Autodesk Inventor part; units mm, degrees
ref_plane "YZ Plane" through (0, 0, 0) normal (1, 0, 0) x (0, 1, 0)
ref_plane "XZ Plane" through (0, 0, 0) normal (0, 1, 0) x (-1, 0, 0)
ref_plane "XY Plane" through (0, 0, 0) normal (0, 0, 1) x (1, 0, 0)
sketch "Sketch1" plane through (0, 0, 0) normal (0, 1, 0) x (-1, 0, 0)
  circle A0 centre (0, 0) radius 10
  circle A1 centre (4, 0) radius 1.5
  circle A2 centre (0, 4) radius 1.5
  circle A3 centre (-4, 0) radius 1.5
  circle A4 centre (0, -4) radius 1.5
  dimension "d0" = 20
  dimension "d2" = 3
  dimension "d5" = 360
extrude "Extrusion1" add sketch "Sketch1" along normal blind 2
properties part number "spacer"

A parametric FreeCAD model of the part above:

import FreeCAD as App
import Part
import Sketcher
Q = App.Units.Quantity

doc = App.newDocument("Part")
body = doc.addObject("PartDesign::Body", "Body")

# Sketch on XZ plane
sketch1 = body.newObject("Sketcher::SketchObject", "Sketch")
sketch1.AttachmentSupport = (doc.getObject("XZ_Plane"), [""])
sketch1.MapMode = "FlatFace"
sketch1.addGeometry(Part.Circle(App.Vector(0, 0, 0), App.Vector(0, 0, 1), 10), False)
sketch1.addGeometry(Part.Circle(App.Vector(0, -4, 0), App.Vector(0, 0, 1), 1.5), False)
sketch1.addGeometry(Part.Circle(App.Vector(4, 0, 0), App.Vector(0, 0, 1), 1.5), False)
sketch1.addGeometry(Part.Circle(App.Vector(-4, 0, 0), App.Vector(0, 0, 1), 1.5), False)
sketch1.addGeometry(Part.Circle(App.Vector(0, 4, 0), App.Vector(0, 0, 1), 1.5), False)
sketch1.addConstraint(Sketcher.Constraint("Coincident", 0, 3, -1, 1))
sketch1.addConstraint(Sketcher.Constraint("Equal", 1, 2))
sketch1.addConstraint(Sketcher.Constraint("Equal", 2, 3))
sketch1.addConstraint(Sketcher.Constraint("Equal", 3, 4))
sketch1.addConstraint(Sketcher.Constraint("Symmetric", 2, 3, 3, 3, -1, 1))
sketch1.addConstraint(Sketcher.Constraint("Symmetric", 1, 3, 4, 3, -1, 1))
sketch1.addConstraint(Sketcher.Constraint("PointOnObject", 1, 3, -2))
sketch1.addConstraint(Sketcher.Constraint("PointOnObject", 2, 3, -1))
sketch1.addConstraint(Sketcher.Constraint("Diameter", 0, Q("20 mm")))
sketch1.addConstraint(Sketcher.Constraint("Diameter", 1, Q("3 mm")))
sketch1.addConstraint(Sketcher.Constraint("DistanceY", 1, 3, -1, 1, Q("4 mm")))
sketch1.addConstraint(Sketcher.Constraint("DistanceX", -1, 1, 2, 3, Q("4 mm")))
pad1 = body.newObject("PartDesign::Pad", "Pad")
pad1.Profile = sketch1
pad1.Length = 2
pad1.Reversed = True

doc.recompute()
